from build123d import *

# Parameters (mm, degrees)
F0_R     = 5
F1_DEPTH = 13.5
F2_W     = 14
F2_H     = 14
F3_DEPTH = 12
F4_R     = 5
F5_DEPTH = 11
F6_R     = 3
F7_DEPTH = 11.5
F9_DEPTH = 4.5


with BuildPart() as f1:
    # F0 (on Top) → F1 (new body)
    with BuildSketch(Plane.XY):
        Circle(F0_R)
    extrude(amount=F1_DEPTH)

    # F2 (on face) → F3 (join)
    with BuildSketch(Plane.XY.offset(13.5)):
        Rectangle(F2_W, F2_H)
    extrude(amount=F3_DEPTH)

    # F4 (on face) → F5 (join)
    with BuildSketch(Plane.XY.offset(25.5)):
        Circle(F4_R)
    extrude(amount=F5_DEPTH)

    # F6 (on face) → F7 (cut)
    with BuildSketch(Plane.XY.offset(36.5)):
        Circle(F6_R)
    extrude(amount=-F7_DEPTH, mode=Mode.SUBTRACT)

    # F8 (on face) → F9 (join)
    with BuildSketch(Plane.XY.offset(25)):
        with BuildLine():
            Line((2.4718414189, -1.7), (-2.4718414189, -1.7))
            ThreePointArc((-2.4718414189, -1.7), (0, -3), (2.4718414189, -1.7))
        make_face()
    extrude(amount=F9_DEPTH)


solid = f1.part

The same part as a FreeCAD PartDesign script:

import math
import FreeCAD as App
import Part
import Sketcher

V = App.Vector


def add_polygon(sketch, points):
    """Adds a closed chain of lines whose ends are joined by coincident constraints."""
    first, n = sketch.GeometryCount, len(points)
    for a, b in zip(points, points[1:] + points[:1]):
        sketch.addGeometry(Part.LineSegment(App.Vector(*a, 0), App.Vector(*b, 0)), False)
    for i in range(n):
        sketch.addConstraint(Sketcher.Constraint("Coincident", first + i, 2, first + (i + 1) % n, 1))

doc = App.newDocument("Part")
params = doc.addObject("Spreadsheet::Sheet", "Params")
for row, (alias, value) in enumerate([
    ("sketch1_diameter", "10 mm"),
    ("pad1_length", "13.5 mm"),
    ("sketch2_width", "14 mm"),
    ("pad2_length", "12 mm"),
    ("sketch3_diameter", "10 mm"),
    ("pad3_length", "11 mm"),
    ("sketch4_diameter", "6 mm"),
    ("pocket1_length", "11.5 mm"),
    ("sketch5_radius", "3 mm"),
    ("pad4_length", "4.5 mm"),
], start=1):
    params.set(f"A{row}", alias)
    params.set(f"B{row}", "=" + value)
    params.setAlias(f"B{row}", alias)

body = doc.addObject("PartDesign::Body", "Body")

# Sketch on XY plane
sketch1 = body.newObject("Sketcher::SketchObject", "Sketch")
sketch1.AttachmentSupport = (doc.getObject("XY_Plane"), [""])
sketch1.MapMode = "FlatFace"
sketch1.addGeometry(Part.Circle(V(0, 0, 0), V(0, 0, 1), 5), False)
sketch1.addConstraint([
    Sketcher.Constraint("Coincident", 0, 3, -1, 1),
    Sketcher.Constraint("Diameter", 0, 10.0),
])
sketch1.setExpression("Constraints[1]", "Params.sketch1_diameter")
pad1 = body.newObject("PartDesign::Pad", "Pad")
pad1.Profile = sketch1
pad1.setExpression("Length", "Params.pad1_length")

# Sketch on XY plane
sketch2 = body.newObject("Sketcher::SketchObject", "Sketch001")
sketch2.AttachmentSupport = (doc.getObject("XY_Plane"), [""])
sketch2.MapMode = "FlatFace"
sketch2.AttachmentOffset = App.Placement(V(0, 0, 13.5), App.Rotation())
add_polygon(sketch2, [(-7, 7), (-7, -7), (7, -7), (7, 7)])  # lines 0-3
sketch2.addConstraint([
    Sketcher.Constraint("Vertical", 0),
    Sketcher.Constraint("Horizontal", 1),
    Sketcher.Constraint("Vertical", 2),
    Sketcher.Constraint("Horizontal", 3),
    Sketcher.Constraint("Symmetric", 0, 2, 2, 2, -1, 1),
    Sketcher.Constraint("Equal", 3, 0),
    Sketcher.Constraint("DistanceX", 1, 1, 1, 2, 14.0),
])
sketch2.setExpression("Constraints[10]", "Params.sketch2_width")
pad2 = body.newObject("PartDesign::Pad", "Pad001")
pad2.Profile = sketch2
pad2.setExpression("Length", "Params.pad2_length")

# Sketch on XY plane
sketch3 = body.newObject("Sketcher::SketchObject", "Sketch002")
sketch3.AttachmentSupport = (doc.getObject("XY_Plane"), [""])
sketch3.MapMode = "FlatFace"
sketch3.AttachmentOffset = App.Placement(V(0, 0, 25.5), App.Rotation())
sketch3.addGeometry(Part.Circle(V(0, 0, 0), V(0, 0, 1), 5), False)
sketch3.addConstraint([
    Sketcher.Constraint("Coincident", 0, 3, -1, 1),
    Sketcher.Constraint("Diameter", 0, 10.0),
])
sketch3.setExpression("Constraints[1]", "Params.sketch3_diameter")
pad3 = body.newObject("PartDesign::Pad", "Pad002")
pad3.Profile = sketch3
pad3.setExpression("Length", "Params.pad3_length")

# Sketch on XY plane
sketch4 = body.newObject("Sketcher::SketchObject", "Sketch003")
sketch4.AttachmentSupport = (doc.getObject("XY_Plane"), [""])
sketch4.MapMode = "FlatFace"
sketch4.AttachmentOffset = App.Placement(V(0, 0, 36.5), App.Rotation())
sketch4.addGeometry(Part.Circle(V(0, 0, 0), V(0, 0, 1), 3), False)
sketch4.addConstraint([
    Sketcher.Constraint("Coincident", 0, 3, -1, 1),
    Sketcher.Constraint("Diameter", 0, 6.0),
])
sketch4.setExpression("Constraints[1]", "Params.sketch4_diameter")
pocket1 = body.newObject("PartDesign::Pocket", "Pocket")
pocket1.Profile = sketch4
pocket1.setExpression("Length", "Params.pocket1_length")

# Sketch on XY plane
sketch5 = body.newObject("Sketcher::SketchObject", "Sketch004")
sketch5.AttachmentSupport = (doc.getObject("XY_Plane"), [""])
sketch5.MapMode = "FlatFace"
sketch5.AttachmentOffset = App.Placement(V(0, 0, 25), App.Rotation())
sketch5.addGeometry([
    Part.LineSegment(V(2.471841, -1.7, 0), V(-2.471841, -1.7, 0)),
    Part.ArcOfCircle(Part.Circle(V(0, 0, 0), V(0, 0, 1), 3), math.radians(-145.481892), math.radians(-34.518108)),
], False)
sketch5.addConstraint([
    Sketcher.Constraint("Coincident", 0, 1, 1, 2),
    Sketcher.Constraint("Coincident", 1, 1, 0, 2),
    Sketcher.Constraint("Horizontal", 0),
    Sketcher.Constraint("Coincident", 1, 3, -1, 1),
    Sketcher.Constraint("Radius", 1, 3.0),
    Sketcher.Constraint("DistanceY", 0, 1, -1, 1, 1.7),
])
sketch5.setExpression("Constraints[4]", "Params.sketch5_radius")
pad4 = body.newObject("PartDesign::Pad", "Pad003")
pad4.Profile = sketch5
pad4.setExpression("Length", "Params.pad4_length")

doc.recompute()
